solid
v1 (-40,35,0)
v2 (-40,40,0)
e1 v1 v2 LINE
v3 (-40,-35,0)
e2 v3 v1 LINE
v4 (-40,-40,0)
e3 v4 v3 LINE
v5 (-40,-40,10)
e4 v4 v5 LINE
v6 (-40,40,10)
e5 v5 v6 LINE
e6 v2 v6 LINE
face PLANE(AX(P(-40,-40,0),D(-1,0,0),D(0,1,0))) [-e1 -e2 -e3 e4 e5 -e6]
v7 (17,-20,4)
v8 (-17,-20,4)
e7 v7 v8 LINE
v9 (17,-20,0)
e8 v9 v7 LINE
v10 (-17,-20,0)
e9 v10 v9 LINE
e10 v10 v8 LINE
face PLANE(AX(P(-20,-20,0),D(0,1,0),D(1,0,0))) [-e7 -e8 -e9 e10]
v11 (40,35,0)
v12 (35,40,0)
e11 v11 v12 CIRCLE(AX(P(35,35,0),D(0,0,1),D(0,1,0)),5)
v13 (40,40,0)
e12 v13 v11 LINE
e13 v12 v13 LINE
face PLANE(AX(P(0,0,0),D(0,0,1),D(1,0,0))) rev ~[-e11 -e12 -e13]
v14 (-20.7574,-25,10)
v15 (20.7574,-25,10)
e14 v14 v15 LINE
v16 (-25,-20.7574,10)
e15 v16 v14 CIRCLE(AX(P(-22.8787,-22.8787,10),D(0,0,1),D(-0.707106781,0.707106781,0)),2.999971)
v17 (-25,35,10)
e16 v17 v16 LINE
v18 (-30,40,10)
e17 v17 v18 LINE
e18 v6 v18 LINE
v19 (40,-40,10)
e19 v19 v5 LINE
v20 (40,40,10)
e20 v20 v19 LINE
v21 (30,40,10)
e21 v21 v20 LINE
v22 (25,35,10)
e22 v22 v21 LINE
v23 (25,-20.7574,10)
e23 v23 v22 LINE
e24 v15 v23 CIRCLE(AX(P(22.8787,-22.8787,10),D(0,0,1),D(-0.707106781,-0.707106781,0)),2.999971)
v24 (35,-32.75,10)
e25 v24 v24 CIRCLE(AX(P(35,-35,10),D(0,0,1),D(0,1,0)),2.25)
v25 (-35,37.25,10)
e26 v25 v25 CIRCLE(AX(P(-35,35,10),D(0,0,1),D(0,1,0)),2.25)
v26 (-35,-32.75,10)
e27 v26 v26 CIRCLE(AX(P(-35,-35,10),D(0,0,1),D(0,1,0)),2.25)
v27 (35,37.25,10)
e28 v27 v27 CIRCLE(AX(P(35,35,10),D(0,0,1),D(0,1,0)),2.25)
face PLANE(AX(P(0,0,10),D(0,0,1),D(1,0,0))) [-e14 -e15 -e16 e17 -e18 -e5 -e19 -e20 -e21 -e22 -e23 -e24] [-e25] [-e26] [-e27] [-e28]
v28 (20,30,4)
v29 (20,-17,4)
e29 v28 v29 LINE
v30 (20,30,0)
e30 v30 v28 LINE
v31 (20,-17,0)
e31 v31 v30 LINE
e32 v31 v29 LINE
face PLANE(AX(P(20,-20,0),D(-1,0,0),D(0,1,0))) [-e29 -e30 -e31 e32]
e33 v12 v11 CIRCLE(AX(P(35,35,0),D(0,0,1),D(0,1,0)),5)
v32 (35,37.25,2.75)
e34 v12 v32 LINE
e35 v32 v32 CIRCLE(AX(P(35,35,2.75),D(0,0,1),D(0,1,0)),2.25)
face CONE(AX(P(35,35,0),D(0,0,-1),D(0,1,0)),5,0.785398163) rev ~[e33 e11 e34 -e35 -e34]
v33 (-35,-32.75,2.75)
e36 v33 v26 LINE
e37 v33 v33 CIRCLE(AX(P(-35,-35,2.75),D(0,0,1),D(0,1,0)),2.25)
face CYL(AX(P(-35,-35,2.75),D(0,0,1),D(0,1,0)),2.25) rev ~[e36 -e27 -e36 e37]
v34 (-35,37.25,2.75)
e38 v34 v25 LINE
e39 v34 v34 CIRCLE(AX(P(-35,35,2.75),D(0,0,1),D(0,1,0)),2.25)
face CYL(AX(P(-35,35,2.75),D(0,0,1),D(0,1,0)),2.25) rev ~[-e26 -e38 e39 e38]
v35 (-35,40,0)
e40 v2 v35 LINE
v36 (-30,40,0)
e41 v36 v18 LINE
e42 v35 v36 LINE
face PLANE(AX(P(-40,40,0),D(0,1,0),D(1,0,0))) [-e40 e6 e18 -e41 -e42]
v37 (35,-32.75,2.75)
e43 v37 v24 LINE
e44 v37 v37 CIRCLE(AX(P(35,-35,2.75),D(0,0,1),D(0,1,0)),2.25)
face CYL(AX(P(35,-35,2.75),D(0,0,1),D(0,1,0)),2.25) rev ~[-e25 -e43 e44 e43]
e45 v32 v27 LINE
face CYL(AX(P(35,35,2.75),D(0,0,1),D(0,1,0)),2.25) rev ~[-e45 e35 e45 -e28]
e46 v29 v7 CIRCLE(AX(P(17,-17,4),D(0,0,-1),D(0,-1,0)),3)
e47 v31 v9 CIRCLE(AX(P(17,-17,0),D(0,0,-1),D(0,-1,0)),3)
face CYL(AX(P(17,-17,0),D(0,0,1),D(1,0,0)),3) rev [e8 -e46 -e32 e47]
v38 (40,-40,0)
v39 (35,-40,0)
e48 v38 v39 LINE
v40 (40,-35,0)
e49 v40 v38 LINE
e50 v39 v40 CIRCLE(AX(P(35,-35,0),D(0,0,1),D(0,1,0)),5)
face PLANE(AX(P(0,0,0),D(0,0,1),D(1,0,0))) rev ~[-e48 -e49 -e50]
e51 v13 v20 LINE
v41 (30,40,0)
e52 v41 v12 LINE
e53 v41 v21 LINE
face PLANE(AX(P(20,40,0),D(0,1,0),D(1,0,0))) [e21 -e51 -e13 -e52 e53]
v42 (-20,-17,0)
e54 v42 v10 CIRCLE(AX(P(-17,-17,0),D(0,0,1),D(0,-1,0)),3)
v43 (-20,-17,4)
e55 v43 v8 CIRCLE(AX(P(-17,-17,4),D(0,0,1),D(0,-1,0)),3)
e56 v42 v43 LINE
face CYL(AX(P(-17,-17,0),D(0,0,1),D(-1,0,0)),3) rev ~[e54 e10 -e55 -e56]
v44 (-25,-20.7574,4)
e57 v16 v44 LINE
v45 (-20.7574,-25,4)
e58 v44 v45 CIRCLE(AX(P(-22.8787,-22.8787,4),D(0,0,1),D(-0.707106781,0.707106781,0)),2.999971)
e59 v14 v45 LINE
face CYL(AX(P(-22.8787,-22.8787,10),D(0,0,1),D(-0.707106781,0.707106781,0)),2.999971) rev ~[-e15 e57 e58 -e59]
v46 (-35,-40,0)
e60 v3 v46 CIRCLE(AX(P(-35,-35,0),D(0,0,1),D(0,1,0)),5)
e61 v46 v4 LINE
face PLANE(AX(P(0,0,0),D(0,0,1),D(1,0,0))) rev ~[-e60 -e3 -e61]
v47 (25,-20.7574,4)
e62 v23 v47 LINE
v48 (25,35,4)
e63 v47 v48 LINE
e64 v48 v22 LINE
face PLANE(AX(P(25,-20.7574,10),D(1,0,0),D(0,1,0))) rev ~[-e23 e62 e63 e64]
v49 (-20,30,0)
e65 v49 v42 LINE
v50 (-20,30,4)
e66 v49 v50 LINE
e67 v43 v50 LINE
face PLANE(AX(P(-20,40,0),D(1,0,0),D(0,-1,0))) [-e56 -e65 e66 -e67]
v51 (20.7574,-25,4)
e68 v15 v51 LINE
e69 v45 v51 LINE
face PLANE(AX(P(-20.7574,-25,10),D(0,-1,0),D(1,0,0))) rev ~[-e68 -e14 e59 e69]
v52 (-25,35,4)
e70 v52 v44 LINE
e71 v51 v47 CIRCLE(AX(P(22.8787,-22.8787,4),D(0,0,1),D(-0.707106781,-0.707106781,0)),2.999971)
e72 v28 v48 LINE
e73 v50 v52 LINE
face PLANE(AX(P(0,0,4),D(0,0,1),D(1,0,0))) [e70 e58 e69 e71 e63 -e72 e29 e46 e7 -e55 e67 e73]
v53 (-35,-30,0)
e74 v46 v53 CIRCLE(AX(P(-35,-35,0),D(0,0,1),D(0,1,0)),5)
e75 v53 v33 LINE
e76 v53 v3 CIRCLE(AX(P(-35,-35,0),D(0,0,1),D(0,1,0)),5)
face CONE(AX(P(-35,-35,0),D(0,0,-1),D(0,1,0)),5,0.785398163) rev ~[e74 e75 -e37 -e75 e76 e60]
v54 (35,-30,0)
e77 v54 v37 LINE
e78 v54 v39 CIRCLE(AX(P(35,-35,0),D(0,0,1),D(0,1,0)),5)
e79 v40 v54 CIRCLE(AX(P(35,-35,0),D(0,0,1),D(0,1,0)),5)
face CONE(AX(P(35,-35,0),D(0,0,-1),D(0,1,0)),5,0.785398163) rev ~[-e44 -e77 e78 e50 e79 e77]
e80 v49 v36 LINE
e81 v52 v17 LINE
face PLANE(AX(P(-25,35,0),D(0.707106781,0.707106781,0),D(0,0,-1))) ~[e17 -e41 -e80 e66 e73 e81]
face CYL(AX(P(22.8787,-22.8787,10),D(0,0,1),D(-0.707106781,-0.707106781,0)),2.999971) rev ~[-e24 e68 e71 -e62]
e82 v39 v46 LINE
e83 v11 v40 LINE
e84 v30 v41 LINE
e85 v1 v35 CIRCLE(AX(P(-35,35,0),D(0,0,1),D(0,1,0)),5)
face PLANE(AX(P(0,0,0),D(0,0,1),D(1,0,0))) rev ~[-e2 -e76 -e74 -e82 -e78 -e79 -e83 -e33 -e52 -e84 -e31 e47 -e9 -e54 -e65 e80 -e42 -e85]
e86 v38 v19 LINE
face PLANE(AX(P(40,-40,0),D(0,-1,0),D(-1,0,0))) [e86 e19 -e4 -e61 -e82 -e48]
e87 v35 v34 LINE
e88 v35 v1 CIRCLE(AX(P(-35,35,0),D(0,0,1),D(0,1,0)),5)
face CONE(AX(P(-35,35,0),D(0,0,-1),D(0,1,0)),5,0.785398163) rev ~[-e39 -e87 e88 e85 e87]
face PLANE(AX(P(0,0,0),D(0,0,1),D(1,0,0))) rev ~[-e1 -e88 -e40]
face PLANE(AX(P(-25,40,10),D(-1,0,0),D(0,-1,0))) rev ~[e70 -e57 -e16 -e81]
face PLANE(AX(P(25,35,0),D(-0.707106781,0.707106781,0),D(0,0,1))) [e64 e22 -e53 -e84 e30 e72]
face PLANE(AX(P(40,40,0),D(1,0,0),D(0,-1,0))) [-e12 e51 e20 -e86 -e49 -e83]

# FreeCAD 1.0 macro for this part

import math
import FreeCAD as App
import Part
import Sketcher

V = App.Vector


def edges_at(feature, points):
    """Names of the edges that pass closest to the given points."""
    edges = feature.Shape.Edges
    near = lambda p: min(range(len(edges)), key=lambda i: edges[i].distToShape(Part.Vertex(*p))[0])
    return sorted({f"Edge{near(p) + 1}" for p in points})

doc = App.newDocument("Part")
body = doc.addObject("PartDesign::Body", "Body")

# Sketch on XY plane
sketch1 = body.newObject("Sketcher::SketchObject", "Sketch")
sketch1.AttachmentSupport = (doc.getObject("XY_Plane"), [""])
sketch1.MapMode = "FlatFace"
sketch1.addGeometry([
    Part.LineSegment(V(40, -40, 0), V(40, 40, 0)),  # 0
    Part.LineSegment(V(40, 40, 0), V(20, 40, 0)),  # 1
    Part.LineSegment(V(20, 40, 0), V(20, -20, 0)),  # 2
    Part.LineSegment(V(20, -20, 0), V(-20, -20, 0)),  # 3
    Part.LineSegment(V(-20, -20, 0), V(-20, 40, 0)),  # 4
    Part.LineSegment(V(-20, 40, 0), V(-40, 40, 0)),  # 5
    Part.LineSegment(V(-40, 40, 0), V(-40, -40, 0)),  # 6
    Part.LineSegment(V(-40, -40, 0), V(40, -40, 0)),  # 7
], False)
sketch1.addConstraint([
    Sketcher.Constraint("Coincident", 0, 2, 1, 1),
    Sketcher.Constraint("Coincident", 1, 2, 2, 1),
    Sketcher.Constraint("Coincident", 2, 2, 3, 1),
    Sketcher.Constraint("Coincident", 3, 2, 4, 1),
    Sketcher.Constraint("Coincident", 4, 2, 5, 1),
    Sketcher.Constraint("Coincident", 5, 2, 6, 1),
    Sketcher.Constraint("Coincident", 6, 2, 7, 1),
    Sketcher.Constraint("Coincident", 7, 2, 0, 1),
    Sketcher.Constraint("Vertical", 0),
    Sketcher.Constraint("Horizontal", 1),
    Sketcher.Constraint("Vertical", 2),
    Sketcher.Constraint("Horizontal", 3),
    Sketcher.Constraint("Vertical", 4),
    Sketcher.Constraint("Horizontal", 5),
    Sketcher.Constraint("Vertical", 6),
    Sketcher.Constraint("Horizontal", 7),
    Sketcher.Constraint("Symmetric", 0, 2, 6, 2, -1, 1),
    Sketcher.Constraint("Symmetric", 1, 2, 4, 2, -2),
    Sketcher.Constraint("Equal", 7, 0),
    Sketcher.Constraint("DistanceX", 3, 2, 3, 1, 40.0),
    Sketcher.Constraint("DistanceX", 7, 1, 7, 2, 80.0),
    Sketcher.Constraint("DistanceY", 2, 2, 2, 1, 60.0),
])
pad1 = body.newObject("PartDesign::Pad", "Pad")
pad1.Profile = sketch1
pad1.Length = 10

# Sketch on XY plane
sketch2 = body.newObject("Sketcher::SketchObject", "Sketch001")
sketch2.AttachmentSupport = (doc.getObject("XY_Plane"), [""])
sketch2.MapMode = "FlatFace"
sketch2.AttachmentOffset = App.Placement(V(0, 0, 10), App.Rotation())
sketch2.addGeometry([
    Part.LineSegment(V(25, -20.7574, 0), V(25, 40, 0)),  # 0
    Part.LineSegment(V(25, 40, 0), V(20, 40, 0)),  # 1
    Part.LineSegment(V(20, 40, 0), V(20, -20, 0)),  # 2
    Part.LineSegment(V(20, -20, 0), V(-20, -20, 0)),  # 3
    Part.LineSegment(V(-20, -20, 0), V(-20, 40, 0)),  # 4
    Part.LineSegment(V(-20, 40, 0), V(-25, 40, 0)),  # 5
    Part.LineSegment(V(-25, 40, 0), V(-25, -20.7574, 0)),  # 6
    Part.ArcOfCircle(Part.Circle(V(-22.8787, -22.8787, 0), V(0, 0, 1), 2.999971), math.radians(135), math.radians(315)),  # 7
    Part.LineSegment(V(-20.7574, -25, 0), V(20.7574, -25, 0)),  # 8
    Part.ArcOfCircle(Part.Circle(V(22.8787, -22.8787, 0), V(0, 0, 1), 2.999971), math.radians(-135), math.radians(45)),  # 9
], False)
sketch2.addConstraint([
    Sketcher.Constraint("Coincident", 0, 2, 1, 1),
    Sketcher.Constraint("Coincident", 1, 2, 2, 1),
    Sketcher.Constraint("Coincident", 2, 2, 3, 1),
    Sketcher.Constraint("Coincident", 3, 2, 4, 1),
    Sketcher.Constraint("Coincident", 4, 2, 5, 1),
    Sketcher.Constraint("Coincident", 5, 2, 6, 1),
    Sketcher.Constraint("Coincident", 6, 2, 7, 1),
    Sketcher.Constraint("Coincident", 7, 2, 8, 1),
    Sketcher.Constraint("Coincident", 8, 2, 9, 1),
    Sketcher.Constraint("Coincident", 9, 2, 0, 1),
    Sketcher.Constraint("Vertical", 0),
    Sketcher.Constraint("Horizontal", 1),
    Sketcher.Constraint("Vertical", 2),
    Sketcher.Constraint("Horizontal", 3),
    Sketcher.Constraint("Vertical", 4),
    Sketcher.Constraint("Horizontal", 5),
    Sketcher.Constraint("Vertical", 6),
    Sketcher.Constraint("Horizontal", 8),
    Sketcher.Constraint("Equal", 7, 9),
    Sketcher.Constraint("Symmetric", 7, 3, 9, 3, -2),
    Sketcher.Constraint("Symmetric", 1, 2, 4, 2, -2),
    Sketcher.Constraint("Horizontal", 6, 2, 9, 2),
    Sketcher.Constraint("Radius", 7, 3.0),
    Sketcher.Constraint("DistanceX", 1, 2, 1, 1, 5.0),
    Sketcher.Constraint("DistanceX", 5, 2, 0, 2, 50.0),
    Sketcher.Constraint("DistanceY", 7, 2, 3, 2, 5.0),
    Sketcher.Constraint("DistanceY", 2, 2, 2, 1, 60.0),
    Sketcher.Constraint("DistanceY", -1, 1, 0, 2, 40.0),
    Sketcher.Constraint("DistanceX", 9, 3, 0, 2, 2.1213),
    Sketcher.Constraint("DistanceX", 7, 3, 7, 2, 2.1213),
])
pocket1 = body.newObject("PartDesign::Pocket", "Pocket")
pocket1.Profile = sketch2
pocket1.Length = 6
doc.recompute()

fillet = body.newObject("PartDesign::Fillet", "Fillet")
fillet.Base = (pocket1, edges_at(pocket1, [(20, -20, 2), (-20, -20, 2)]))
fillet.Radius = 3
doc.recompute()

chamfer = body.newObject("PartDesign::Chamfer", "Chamfer")
chamfer.Base = (fillet, edges_at(fillet, [(-20, 40, 2), (20, 40, 2)]))
chamfer.Size = 10

# Sketch on XY plane
sketch3 = body.newObject("Sketcher::SketchObject", "Sketch002")
sketch3.AttachmentSupport = (doc.getObject("XY_Plane"), [""])
sketch3.MapMode = "FlatFace"
sketch3.addGeometry([
    Part.Circle(V(-35, 35, 0), V(0, 0, 1), 2.25),
    Part.Circle(V(-35, -35, 0), V(0, 0, 1), 2.25),
    Part.Circle(V(35, -35, 0), V(0, 0, 1), 2.25),
    Part.Circle(V(35, 35, 0), V(0, 0, 1), 2.25),
], False)
sketch3.addConstraint([
    Sketcher.Constraint("Equal", 0, 1),
    Sketcher.Constraint("Equal", 1, 2),
    Sketcher.Constraint("Equal", 2, 3),
    Sketcher.Constraint("Symmetric", 0, 3, 2, 3, -1, 1),
    Sketcher.Constraint("Symmetric", 1, 3, 3, 3, -1, 1),
    Sketcher.Constraint("Symmetric", 1, 3, 2, 3, -2),
    Sketcher.Constraint("Diameter", 0, 4.5),
    Sketcher.Constraint("DistanceX", 0, 3, -1, 1, 35.0),
    Sketcher.Constraint("DistanceY", -1, 1, 0, 3, 35.0),
])
doc.recompute()
hole = body.newObject("PartDesign::Hole", "Hole")
hole.Profile = sketch3
hole.ThreadType = "None"
hole.Diameter = 4.5
hole.DepthType = "ThroughAll"
hole.HoleCutType = "Countersink"
hole.HoleCutDiameter = 10
hole.HoleCutCountersinkAngle = 90
hole.Reversed = True

doc.recompute()
